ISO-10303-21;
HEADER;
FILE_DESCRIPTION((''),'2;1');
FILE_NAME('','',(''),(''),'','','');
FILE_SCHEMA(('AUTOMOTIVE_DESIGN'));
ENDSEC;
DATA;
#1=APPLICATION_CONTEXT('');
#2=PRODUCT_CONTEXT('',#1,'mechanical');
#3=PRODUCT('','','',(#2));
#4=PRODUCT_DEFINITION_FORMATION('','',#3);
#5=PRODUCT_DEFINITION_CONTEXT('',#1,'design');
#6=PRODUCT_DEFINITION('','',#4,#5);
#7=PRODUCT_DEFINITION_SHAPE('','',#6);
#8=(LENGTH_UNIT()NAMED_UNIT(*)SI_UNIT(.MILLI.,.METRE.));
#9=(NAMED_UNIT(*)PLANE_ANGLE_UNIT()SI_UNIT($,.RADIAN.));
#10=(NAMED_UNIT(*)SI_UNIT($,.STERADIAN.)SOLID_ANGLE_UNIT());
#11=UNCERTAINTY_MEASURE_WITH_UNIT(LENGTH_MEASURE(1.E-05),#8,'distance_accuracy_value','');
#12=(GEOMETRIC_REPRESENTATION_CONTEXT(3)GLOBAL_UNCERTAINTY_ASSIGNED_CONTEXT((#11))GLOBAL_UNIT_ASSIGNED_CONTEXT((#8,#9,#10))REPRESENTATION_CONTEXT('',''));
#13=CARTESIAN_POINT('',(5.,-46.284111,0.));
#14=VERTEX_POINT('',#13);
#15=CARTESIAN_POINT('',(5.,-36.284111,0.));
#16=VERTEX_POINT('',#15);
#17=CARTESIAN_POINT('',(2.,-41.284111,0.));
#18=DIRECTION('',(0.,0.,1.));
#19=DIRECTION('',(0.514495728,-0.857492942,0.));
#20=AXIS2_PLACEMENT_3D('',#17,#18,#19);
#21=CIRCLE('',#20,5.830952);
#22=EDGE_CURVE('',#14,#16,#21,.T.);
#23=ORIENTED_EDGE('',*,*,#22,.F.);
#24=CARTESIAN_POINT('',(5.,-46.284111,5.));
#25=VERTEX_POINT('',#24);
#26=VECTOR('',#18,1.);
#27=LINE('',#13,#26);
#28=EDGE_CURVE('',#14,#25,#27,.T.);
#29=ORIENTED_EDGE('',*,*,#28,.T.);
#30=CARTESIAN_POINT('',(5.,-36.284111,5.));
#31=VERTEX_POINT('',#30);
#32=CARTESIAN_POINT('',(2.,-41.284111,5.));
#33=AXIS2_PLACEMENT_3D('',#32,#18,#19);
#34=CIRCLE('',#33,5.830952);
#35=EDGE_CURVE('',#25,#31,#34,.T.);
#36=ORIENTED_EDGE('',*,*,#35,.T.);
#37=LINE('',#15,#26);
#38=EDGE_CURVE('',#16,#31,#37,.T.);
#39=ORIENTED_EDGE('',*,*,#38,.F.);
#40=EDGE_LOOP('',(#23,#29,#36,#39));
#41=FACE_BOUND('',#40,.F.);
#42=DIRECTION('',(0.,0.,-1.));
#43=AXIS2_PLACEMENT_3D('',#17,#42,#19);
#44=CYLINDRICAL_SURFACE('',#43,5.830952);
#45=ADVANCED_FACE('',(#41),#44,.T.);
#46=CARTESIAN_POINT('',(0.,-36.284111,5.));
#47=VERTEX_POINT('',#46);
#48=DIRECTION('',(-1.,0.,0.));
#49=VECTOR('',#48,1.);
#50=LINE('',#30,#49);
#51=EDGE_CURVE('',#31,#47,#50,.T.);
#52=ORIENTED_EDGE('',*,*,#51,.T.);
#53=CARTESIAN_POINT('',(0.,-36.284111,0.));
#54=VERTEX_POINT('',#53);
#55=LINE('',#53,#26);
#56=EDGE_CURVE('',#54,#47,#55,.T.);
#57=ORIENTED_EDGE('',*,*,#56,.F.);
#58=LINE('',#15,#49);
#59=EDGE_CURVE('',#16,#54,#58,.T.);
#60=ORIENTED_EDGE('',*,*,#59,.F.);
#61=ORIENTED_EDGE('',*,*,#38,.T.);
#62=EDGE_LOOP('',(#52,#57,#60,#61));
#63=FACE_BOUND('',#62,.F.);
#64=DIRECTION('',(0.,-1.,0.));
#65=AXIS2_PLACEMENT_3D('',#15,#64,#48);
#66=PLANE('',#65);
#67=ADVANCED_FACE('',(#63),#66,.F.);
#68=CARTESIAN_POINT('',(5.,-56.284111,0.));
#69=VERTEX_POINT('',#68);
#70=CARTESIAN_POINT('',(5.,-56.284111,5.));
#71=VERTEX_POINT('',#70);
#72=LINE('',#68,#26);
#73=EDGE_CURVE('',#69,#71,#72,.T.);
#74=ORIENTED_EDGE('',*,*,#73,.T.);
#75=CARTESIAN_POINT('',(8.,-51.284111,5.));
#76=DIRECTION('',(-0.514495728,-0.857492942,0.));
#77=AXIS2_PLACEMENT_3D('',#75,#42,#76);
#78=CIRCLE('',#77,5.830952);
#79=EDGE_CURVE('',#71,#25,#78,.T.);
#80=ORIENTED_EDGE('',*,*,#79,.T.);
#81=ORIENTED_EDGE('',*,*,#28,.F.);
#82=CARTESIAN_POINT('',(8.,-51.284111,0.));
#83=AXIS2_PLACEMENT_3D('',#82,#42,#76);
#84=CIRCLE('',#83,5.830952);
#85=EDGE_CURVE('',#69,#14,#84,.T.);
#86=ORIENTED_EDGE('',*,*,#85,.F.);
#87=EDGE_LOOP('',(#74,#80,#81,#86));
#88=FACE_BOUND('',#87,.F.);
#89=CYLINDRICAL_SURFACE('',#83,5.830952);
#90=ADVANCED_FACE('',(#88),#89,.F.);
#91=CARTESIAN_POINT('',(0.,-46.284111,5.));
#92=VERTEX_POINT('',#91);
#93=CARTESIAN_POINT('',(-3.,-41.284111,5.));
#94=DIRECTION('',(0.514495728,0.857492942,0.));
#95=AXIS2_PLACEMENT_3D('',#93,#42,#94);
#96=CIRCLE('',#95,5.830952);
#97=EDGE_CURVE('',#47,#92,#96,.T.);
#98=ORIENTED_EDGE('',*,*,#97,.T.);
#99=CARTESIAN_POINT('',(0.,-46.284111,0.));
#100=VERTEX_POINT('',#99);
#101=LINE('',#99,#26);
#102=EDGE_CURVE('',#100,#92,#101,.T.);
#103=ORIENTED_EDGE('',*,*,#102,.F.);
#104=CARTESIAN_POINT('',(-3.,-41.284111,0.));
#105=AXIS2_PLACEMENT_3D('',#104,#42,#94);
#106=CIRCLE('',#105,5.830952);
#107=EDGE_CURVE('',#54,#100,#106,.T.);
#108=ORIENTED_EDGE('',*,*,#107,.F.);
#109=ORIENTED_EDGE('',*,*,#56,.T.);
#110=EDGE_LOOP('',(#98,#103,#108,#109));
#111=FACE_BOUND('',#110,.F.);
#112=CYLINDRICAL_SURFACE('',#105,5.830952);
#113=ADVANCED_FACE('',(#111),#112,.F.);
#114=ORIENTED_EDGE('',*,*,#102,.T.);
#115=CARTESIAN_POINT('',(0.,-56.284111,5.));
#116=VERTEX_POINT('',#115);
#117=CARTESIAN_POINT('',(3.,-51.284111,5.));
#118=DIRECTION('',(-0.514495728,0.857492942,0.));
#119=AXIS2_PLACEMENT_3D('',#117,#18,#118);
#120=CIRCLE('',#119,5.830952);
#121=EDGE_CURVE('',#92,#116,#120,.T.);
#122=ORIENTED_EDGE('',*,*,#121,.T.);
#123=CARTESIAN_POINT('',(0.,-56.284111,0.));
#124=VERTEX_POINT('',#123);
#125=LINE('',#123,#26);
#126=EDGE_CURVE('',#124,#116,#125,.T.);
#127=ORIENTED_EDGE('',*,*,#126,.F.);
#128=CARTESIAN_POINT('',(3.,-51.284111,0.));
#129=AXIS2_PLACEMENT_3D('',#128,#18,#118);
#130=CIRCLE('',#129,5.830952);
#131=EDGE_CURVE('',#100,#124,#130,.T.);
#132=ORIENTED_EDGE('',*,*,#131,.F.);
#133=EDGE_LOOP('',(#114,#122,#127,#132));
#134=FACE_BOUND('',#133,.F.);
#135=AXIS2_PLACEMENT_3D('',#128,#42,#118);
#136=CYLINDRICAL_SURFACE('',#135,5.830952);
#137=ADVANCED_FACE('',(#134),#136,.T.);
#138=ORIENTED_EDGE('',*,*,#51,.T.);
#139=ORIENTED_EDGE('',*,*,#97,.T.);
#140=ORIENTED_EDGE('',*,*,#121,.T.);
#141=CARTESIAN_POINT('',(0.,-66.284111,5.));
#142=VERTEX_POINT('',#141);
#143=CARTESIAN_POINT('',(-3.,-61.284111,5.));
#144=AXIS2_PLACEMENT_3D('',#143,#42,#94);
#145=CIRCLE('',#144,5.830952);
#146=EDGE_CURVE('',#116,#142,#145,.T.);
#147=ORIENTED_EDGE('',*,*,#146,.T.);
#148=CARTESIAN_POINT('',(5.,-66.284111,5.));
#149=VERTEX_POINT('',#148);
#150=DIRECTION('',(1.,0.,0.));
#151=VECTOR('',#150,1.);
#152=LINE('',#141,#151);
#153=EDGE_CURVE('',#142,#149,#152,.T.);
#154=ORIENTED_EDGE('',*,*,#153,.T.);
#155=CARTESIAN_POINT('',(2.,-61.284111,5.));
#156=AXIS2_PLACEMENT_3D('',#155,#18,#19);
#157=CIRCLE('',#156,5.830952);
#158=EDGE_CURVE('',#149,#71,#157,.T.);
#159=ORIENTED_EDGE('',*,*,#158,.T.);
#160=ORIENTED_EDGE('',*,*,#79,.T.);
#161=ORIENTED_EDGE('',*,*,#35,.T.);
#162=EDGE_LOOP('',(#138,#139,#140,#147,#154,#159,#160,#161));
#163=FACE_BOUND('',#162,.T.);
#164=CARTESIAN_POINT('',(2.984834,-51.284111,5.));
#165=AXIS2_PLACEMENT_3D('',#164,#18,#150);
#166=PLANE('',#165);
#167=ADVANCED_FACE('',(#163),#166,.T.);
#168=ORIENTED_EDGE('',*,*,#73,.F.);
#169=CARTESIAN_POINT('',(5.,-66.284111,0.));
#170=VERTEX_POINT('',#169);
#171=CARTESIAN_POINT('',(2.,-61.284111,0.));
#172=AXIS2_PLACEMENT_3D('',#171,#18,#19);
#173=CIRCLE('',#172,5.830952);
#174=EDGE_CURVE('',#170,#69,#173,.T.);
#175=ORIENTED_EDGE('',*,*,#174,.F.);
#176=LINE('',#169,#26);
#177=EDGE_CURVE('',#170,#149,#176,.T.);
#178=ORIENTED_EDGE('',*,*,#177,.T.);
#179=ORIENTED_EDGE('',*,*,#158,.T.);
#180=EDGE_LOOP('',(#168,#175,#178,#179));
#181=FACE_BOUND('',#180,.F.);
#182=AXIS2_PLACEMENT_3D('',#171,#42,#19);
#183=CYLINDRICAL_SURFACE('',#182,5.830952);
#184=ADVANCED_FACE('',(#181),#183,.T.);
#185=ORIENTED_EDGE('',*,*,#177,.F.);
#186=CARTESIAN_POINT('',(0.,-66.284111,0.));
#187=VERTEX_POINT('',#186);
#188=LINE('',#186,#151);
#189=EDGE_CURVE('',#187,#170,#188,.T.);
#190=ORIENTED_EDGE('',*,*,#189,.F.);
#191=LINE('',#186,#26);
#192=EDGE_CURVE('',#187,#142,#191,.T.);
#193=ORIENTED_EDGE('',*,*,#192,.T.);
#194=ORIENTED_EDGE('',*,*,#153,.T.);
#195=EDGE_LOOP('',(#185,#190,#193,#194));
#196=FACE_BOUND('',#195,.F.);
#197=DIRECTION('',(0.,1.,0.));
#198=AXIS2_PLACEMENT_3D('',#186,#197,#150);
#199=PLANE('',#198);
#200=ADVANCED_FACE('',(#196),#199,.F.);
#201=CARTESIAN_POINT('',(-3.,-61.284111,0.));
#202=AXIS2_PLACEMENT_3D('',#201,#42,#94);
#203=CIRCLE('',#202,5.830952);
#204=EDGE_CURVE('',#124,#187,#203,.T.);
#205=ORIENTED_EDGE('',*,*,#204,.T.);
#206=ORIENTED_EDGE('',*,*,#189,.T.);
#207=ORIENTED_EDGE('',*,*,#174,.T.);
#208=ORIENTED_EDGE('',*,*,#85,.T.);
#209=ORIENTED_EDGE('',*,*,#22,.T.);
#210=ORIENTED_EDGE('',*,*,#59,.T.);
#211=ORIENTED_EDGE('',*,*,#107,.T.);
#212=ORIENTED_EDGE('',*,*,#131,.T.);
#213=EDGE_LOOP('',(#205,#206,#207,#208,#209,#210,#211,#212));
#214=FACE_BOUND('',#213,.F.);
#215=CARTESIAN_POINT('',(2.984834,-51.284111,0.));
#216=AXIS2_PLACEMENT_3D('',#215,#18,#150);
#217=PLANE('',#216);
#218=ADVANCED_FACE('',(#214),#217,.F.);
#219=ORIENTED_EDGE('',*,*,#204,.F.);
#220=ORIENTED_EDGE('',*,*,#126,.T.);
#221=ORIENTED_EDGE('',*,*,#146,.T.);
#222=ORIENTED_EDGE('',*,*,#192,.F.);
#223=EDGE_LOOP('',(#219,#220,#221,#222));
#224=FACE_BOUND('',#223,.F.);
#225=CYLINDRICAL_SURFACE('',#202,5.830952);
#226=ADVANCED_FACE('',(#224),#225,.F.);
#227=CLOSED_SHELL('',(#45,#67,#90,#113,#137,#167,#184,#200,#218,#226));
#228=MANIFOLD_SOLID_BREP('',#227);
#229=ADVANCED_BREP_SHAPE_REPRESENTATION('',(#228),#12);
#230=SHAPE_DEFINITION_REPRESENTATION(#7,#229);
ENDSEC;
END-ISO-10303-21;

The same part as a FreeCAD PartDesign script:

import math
import FreeCAD as App
import Part
import Sketcher

V = App.Vector

doc = App.newDocument("Part")
body = doc.addObject("PartDesign::Body", "Body")

# Sketch on XY plane
sketch1 = body.newObject("Sketcher::SketchObject", "Sketch")
sketch1.AttachmentSupport = (doc.getObject("XY_Plane"), [""])
sketch1.MapMode = "FlatFace"
sketch1.addGeometry(Part.ArcOfCircle(Part.Circle(V(-3, -61.284111, 0), V(0, 0, 1), 5.830952), math.radians(-59.036245), math.radians(59.036245)), False)
sketch1.addGeometry(Part.LineSegment(V(0, -66.284111, 0), V(5, -66.284111, 0)), False)
sketch1.addGeometry(Part.ArcOfCircle(Part.Circle(V(2, -61.284111, 0), V(0, 0, 1), 5.830952), math.radians(-59.036245), math.radians(59.036245)), False)
sketch1.addGeometry(Part.ArcOfCircle(Part.Circle(V(8, -51.284111, 0), V(0, 0, 1), 5.830952), math.radians(120.963755), math.radians(239.036245)), False)
sketch1.addGeometry(Part.ArcOfCircle(Part.Circle(V(2, -41.284111, 0), V(0, 0, 1), 5.830952), math.radians(-59.036245), math.radians(59.036245)), False)
sketch1.addGeometry(Part.LineSegment(V(5, -36.284111, 0), V(0, -36.284111, 0)), False)
sketch1.addGeometry(Part.ArcOfCircle(Part.Circle(V(-3, -41.284111, 0), V(0, 0, 1), 5.830952), math.radians(-59.036245), math.radians(59.036245)), False)
sketch1.addGeometry(Part.ArcOfCircle(Part.Circle(V(3, -51.284111, 0), V(0, 0, 1), 5.830952), math.radians(120.963755), math.radians(239.036245)), False)
sketch1.addConstraint(Sketcher.Constraint("Coincident", 0, 1, 1, 1))
sketch1.addConstraint(Sketcher.Constraint("Coincident", 1, 2, 2, 1))
sketch1.addConstraint(Sketcher.Constraint("Tangent", 2, 2, 3, 2))
sketch1.addConstraint(Sketcher.Constraint("Tangent", 3, 1, 4, 1))
sketch1.addConstraint(Sketcher.Constraint("Coincident", 4, 2, 5, 1))
sketch1.addConstraint(Sketcher.Constraint("Coincident", 5, 2, 6, 2))
sketch1.addConstraint(Sketcher.Constraint("Tangent", 6, 1, 7, 1))
sketch1.addConstraint(Sketcher.Constraint("Tangent", 7, 2, 0, 2))
sketch1.addConstraint(Sketcher.Constraint("Horizontal", 1))
sketch1.addConstraint(Sketcher.Constraint("Horizontal", 5))
sketch1.addConstraint(Sketcher.Constraint("Equal", 0, 2))
sketch1.addConstraint(Sketcher.Constraint("Equal", 2, 3))
sketch1.addConstraint(Sketcher.Constraint("Equal", 3, 4))
sketch1.addConstraint(Sketcher.Constraint("Equal", 4, 6))
sketch1.addConstraint(Sketcher.Constraint("Equal", 6, 7))
sketch1.addConstraint(Sketcher.Constraint("PointOnObject", 0, 1, -2))
sketch1.addConstraint(Sketcher.Constraint("PointOnObject", 5, 2, -2))
sketch1.addConstraint(Sketcher.Constraint("PointOnObject", 6, 1, -2))
sketch1.addConstraint(Sketcher.Constraint("PointOnObject", 7, 2, -2))
sketch1.addConstraint(Sketcher.Constraint("Horizontal", 0, 3, 2, 3))
sketch1.addConstraint(Sketcher.Constraint("Horizontal", 4, 3, 6, 3))
sketch1.addConstraint(Sketcher.Constraint("Horizontal", 3, 3, 7, 3))
sketch1.addConstraint(Sketcher.Constraint("DistanceX", 1, 1, 1, 2, 5.0))
sketch1.addConstraint(Sketcher.Constraint("DistanceX", 0, 3, -1, 1, 3.0))
sketch1.addConstraint(Sketcher.Constraint("DistanceY", 2, 3, 3, 3, 10.0))
sketch1.addConstraint(Sketcher.Constraint("DistanceY", 0, 3, -1, 1, 61.284111))
pad1 = body.newObject("PartDesign::Pad", "Pad")
pad1.Profile = sketch1
pad1.Length = 5

doc.recompute()
